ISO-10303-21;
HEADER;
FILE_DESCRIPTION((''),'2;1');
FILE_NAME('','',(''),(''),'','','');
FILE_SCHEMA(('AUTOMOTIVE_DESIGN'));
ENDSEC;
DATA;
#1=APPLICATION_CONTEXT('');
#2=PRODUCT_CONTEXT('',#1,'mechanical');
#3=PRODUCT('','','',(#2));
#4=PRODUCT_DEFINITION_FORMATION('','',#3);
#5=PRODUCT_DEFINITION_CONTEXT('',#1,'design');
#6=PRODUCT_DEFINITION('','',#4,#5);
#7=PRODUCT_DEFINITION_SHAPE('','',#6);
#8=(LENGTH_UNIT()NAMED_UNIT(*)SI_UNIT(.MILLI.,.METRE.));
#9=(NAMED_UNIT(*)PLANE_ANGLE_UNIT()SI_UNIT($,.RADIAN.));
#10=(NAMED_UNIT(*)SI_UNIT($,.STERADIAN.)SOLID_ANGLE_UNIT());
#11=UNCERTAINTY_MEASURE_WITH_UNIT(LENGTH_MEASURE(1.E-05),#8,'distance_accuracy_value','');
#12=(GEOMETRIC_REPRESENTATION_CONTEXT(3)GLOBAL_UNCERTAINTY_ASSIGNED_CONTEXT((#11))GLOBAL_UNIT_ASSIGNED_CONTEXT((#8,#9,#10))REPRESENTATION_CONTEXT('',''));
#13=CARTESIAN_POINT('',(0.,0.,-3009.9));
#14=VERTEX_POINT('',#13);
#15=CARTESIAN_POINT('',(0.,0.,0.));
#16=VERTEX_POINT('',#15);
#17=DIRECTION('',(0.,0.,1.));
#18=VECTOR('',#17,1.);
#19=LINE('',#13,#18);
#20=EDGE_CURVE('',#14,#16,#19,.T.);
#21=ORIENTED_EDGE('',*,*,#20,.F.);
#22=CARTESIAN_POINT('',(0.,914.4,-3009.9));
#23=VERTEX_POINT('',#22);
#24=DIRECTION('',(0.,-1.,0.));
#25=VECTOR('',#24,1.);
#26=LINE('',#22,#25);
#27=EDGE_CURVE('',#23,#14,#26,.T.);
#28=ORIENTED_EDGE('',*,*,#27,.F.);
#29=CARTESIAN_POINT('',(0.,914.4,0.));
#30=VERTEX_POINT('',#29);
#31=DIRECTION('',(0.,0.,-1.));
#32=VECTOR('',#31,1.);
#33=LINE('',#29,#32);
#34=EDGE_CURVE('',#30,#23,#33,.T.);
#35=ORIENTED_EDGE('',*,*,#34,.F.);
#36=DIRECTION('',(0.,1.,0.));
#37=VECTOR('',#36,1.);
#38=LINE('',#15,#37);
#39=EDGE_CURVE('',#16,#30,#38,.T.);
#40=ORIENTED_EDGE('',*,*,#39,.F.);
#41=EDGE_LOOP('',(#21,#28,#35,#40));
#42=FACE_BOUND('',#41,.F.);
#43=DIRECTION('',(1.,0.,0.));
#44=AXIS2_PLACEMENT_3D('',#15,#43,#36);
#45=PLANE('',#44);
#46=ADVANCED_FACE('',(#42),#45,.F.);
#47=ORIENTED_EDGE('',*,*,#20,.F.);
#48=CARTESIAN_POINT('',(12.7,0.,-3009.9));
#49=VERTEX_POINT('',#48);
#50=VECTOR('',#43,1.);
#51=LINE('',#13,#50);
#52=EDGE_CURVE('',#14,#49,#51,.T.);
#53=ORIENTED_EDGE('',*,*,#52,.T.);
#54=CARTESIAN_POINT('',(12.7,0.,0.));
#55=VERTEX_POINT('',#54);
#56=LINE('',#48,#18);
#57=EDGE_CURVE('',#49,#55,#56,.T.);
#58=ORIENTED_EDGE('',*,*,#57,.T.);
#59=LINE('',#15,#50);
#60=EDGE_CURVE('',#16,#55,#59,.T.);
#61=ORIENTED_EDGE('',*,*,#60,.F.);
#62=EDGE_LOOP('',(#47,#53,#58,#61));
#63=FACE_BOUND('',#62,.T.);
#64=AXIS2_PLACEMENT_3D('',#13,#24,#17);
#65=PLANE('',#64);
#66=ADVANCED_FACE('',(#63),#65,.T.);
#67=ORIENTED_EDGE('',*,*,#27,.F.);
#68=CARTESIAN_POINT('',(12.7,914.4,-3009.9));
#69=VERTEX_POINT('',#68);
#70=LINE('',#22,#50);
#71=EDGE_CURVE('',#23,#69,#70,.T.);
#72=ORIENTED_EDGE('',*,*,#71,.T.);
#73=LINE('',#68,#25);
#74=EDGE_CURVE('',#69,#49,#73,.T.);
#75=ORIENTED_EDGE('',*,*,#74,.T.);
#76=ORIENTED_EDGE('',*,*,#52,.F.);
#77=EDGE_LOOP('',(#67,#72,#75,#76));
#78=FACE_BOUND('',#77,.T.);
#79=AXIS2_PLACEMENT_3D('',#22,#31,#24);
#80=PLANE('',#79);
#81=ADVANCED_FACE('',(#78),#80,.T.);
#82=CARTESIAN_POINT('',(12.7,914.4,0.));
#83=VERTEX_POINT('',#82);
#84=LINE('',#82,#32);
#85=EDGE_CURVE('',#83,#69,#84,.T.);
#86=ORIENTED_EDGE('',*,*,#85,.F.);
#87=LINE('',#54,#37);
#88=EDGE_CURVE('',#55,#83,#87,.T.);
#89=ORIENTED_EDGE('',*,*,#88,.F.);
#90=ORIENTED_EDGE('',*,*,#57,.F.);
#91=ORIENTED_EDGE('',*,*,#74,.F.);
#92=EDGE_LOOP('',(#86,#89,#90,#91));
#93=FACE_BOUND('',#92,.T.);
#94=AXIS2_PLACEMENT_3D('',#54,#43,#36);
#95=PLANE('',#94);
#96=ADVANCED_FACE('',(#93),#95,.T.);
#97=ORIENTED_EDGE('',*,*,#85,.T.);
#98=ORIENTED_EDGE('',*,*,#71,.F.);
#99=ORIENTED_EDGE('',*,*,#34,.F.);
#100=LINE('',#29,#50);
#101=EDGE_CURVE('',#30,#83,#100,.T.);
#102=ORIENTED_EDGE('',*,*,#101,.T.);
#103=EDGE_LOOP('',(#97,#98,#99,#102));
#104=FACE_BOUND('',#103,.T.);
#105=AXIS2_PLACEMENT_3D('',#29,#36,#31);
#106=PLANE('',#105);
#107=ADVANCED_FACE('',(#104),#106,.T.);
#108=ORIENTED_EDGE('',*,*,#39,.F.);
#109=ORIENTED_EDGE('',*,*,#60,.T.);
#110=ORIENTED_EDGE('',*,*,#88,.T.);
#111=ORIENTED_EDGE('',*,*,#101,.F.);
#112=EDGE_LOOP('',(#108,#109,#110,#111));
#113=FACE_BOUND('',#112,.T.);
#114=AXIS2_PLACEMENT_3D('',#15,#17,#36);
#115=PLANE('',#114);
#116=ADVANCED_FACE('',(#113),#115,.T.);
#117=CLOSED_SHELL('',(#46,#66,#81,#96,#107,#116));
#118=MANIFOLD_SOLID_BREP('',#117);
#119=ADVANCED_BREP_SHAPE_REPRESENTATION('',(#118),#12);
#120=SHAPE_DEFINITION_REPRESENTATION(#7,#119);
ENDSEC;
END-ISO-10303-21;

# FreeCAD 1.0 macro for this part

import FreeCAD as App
import Part
import Sketcher
from FreeCAD import Vector
Q = App.Units.Quantity


def add_polygon(sketch, points):
    """Adds a closed chain of lines whose ends are joined by coincident constraints."""
    first, n = sketch.GeometryCount, len(points)
    for a, b in zip(points, points[1:] + points[:1]):
        sketch.addGeometry(Part.LineSegment(App.Vector(*a, 0), App.Vector(*b, 0)), False)
    for i in range(n):
        sketch.addConstraint(Sketcher.Constraint("Coincident", first + i, 2, first + (i + 1) % n, 1))

doc = App.newDocument("Part")
body = doc.addObject("PartDesign::Body", "Body")

# Sketch on YZ plane
sketch1 = body.newObject("Sketcher::SketchObject", "Sketch")
sketch1.AttachmentSupport = (doc.getObject("YZ_Plane"), [""])
sketch1.MapMode = "FlatFace"
add_polygon(sketch1, [(914.4, 0), (0, 0), (0, -3009.9), (914.4, -3009.9)])  # lines 0-3
sketch1.addConstraint([
    Sketcher.Constraint("Horizontal", 0),
    Sketcher.Constraint("Vertical", 1),
    Sketcher.Constraint("Horizontal", 2),
    Sketcher.Constraint("Vertical", 3),
    Sketcher.Constraint("Coincident", 0, 2, -1, 1),
    Sketcher.Constraint("DistanceX", 0, 2, 0, 1, Q("36 in")),
    Sketcher.Constraint("DistanceY", 1, 2, 1, 1, Q("118.5 in")),
])
pad1 = body.newObject("PartDesign::Pad", "Pad")
pad1.Profile = sketch1
pad1.Length = Q("0.5 in")

doc.recompute()
